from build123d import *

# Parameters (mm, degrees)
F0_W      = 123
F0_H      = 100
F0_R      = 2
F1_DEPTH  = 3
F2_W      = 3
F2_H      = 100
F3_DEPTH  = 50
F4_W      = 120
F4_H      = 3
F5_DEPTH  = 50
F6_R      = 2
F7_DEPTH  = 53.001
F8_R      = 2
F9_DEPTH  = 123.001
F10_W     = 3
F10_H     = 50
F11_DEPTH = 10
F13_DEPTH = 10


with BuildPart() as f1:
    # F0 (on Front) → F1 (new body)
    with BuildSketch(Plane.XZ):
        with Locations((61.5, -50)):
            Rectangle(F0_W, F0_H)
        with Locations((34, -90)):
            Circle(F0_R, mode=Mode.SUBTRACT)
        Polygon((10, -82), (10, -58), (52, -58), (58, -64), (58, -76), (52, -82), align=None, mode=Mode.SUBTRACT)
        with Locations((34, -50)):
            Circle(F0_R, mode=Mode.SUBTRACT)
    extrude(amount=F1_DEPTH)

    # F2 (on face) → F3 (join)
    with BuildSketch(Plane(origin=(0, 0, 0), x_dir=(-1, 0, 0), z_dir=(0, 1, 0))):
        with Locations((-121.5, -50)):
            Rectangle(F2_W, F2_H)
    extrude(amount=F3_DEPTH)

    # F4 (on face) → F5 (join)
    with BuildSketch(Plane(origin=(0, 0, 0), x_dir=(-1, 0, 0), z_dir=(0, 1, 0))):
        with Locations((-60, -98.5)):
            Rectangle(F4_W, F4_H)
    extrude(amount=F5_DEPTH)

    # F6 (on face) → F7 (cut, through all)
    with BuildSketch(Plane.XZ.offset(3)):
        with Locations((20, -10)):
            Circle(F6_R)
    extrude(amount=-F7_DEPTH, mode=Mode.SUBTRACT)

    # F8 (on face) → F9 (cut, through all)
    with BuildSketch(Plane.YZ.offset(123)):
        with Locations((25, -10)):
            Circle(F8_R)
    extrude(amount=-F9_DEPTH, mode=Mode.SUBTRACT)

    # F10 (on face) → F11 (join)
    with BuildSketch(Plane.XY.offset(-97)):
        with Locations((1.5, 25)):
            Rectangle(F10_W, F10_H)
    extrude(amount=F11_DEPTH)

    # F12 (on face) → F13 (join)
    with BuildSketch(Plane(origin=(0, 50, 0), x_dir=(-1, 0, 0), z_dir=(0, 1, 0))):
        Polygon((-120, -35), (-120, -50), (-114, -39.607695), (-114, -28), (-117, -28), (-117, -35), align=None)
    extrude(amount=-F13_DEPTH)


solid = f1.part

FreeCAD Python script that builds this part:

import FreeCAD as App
import Part
import Sketcher
from FreeCAD import Vector
Q = App.Units.Quantity


def add_polygon(sketch, points):
    """Adds a closed chain of lines whose ends are joined by coincident constraints."""
    first, n = sketch.GeometryCount, len(points)
    for a, b in zip(points, points[1:] + points[:1]):
        sketch.addGeometry(Part.LineSegment(App.Vector(*a, 0), App.Vector(*b, 0)), False)
    for i in range(n):
        sketch.addConstraint(Sketcher.Constraint("Coincident", first + i, 2, first + (i + 1) % n, 1))

doc = App.newDocument("Part")
body = doc.addObject("PartDesign::Body", "Body")

# Sketch on XZ plane
sketch1 = body.newObject("Sketcher::SketchObject", "Sketch")
sketch1.AttachmentSupport = (doc.getObject("XZ_Plane"), [""])
sketch1.MapMode = "FlatFace"
add_polygon(sketch1, [(0, 0), (0, -100), (123, -100), (123, 0)])  # lines 0-3
sketch1.addGeometry(Part.Circle(Vector(34, -90, 0), Vector(0, 0, 1), 2), False)  # 4
add_polygon(sketch1, [(52, -82), (10, -82), (10, -58), (52, -58), (58, -64), (58, -76)])  # lines 5-10
sketch1.addGeometry(Part.Circle(Vector(34, -50, 0), Vector(0, 0, 1), 2), False)  # 11
sketch1.addConstraint([
    Sketcher.Constraint("Vertical", 0),
    Sketcher.Constraint("Horizontal", 1),
    Sketcher.Constraint("Vertical", 2),
    Sketcher.Constraint("Horizontal", 3),
    Sketcher.Constraint("Horizontal", 5),
    Sketcher.Constraint("Vertical", 6),
    Sketcher.Constraint("Horizontal", 7),
    Sketcher.Constraint("Vertical", 9),
    Sketcher.Constraint("Coincident", 3, 2, -1, 1),
    Sketcher.Constraint("Equal", 4, 11),
    Sketcher.Constraint("Perpendicular", 8, 10),
    Sketcher.Constraint("Vertical", 4, 3, 11, 3),
    Sketcher.Constraint("Vertical", 7, 2, 10, 2),
    Sketcher.Constraint("Equal", 8, 10),
    Sketcher.Constraint("Diameter", 4, Q("4 mm")),
    Sketcher.Constraint("DistanceX", 1, 1, 1, 2, Q("123 mm")),
    Sketcher.Constraint("DistanceX", 5, 2, 5, 1, Q("42 mm")),
    Sketcher.Constraint("DistanceY", 0, 2, 0, 1, Q("100 mm")),
    Sketcher.Constraint("DistanceY", 6, 1, 6, 2, Q("24 mm")),
    Sketcher.Constraint("DistanceY", 9, 2, 9, 1, Q("12 mm")),
    Sketcher.Constraint("DistanceX", -1, 1, 4, 3, Q("34 mm")),
    Sketcher.Constraint("DistanceY", 4, 3, -1, 1, Q("90 mm")),
    Sketcher.Constraint("DistanceY", 11, 3, -1, 1, Q("50 mm")),
    Sketcher.Constraint("DistanceX", -1, 1, 5, 2, Q("10 mm")),
    Sketcher.Constraint("DistanceY", 5, 2, -1, 1, Q("82 mm")),
])
pad1 = body.newObject("PartDesign::Pad", "Pad")
pad1.Profile = sketch1
pad1.Length = 3

# Sketch on XZ plane
sketch2 = body.newObject("Sketcher::SketchObject", "Sketch001")
sketch2.AttachmentSupport = (doc.getObject("XZ_Plane"), [""])
sketch2.MapMode = "FlatFace"
add_polygon(sketch2, [(123, 0), (123, -100), (120, -100), (120, 0)])  # lines 0-3
sketch2.addConstraint([
    Sketcher.Constraint("Vertical", 0),
    Sketcher.Constraint("Horizontal", 1),
    Sketcher.Constraint("Vertical", 2),
    Sketcher.Constraint("Horizontal", 3),
    Sketcher.Constraint("PointOnObject", 2, 2, -1),
    Sketcher.Constraint("DistanceX", 1, 2, 1, 1, Q("3 mm")),
    Sketcher.Constraint("DistanceY", 0, 2, 0, 1, Q("100 mm")),
    Sketcher.Constraint("DistanceX", -1, 1, 0, 2, Q("123 mm")),
])
pad2 = body.newObject("PartDesign::Pad", "Pad001")
pad2.Profile = sketch2
pad2.Length = 50
pad2.Reversed = True

# Sketch on XZ plane
sketch3 = body.newObject("Sketcher::SketchObject", "Sketch002")
sketch3.AttachmentSupport = (doc.getObject("XZ_Plane"), [""])
sketch3.MapMode = "FlatFace"
add_polygon(sketch3, [(120, -97), (120, -100), (0, -100), (0, -97)])  # lines 0-3
sketch3.addConstraint([
    Sketcher.Constraint("Vertical", 0),
    Sketcher.Constraint("Horizontal", 1),
    Sketcher.Constraint("Vertical", 2),
    Sketcher.Constraint("Horizontal", 3),
    Sketcher.Constraint("PointOnObject", 1, 2, -2),
    Sketcher.Constraint("DistanceX", 1, 2, 1, 1, Q("120 mm")),
    Sketcher.Constraint("DistanceY", 0, 2, 0, 1, Q("3 mm")),
    Sketcher.Constraint("DistanceY", 0, 2, -1, 1, Q("100 mm")),
])
pad3 = body.newObject("PartDesign::Pad", "Pad002")
pad3.Profile = sketch3
pad3.Length = 50
pad3.Reversed = True

# Sketch on XZ plane
sketch4 = body.newObject("Sketcher::SketchObject", "Sketch003")
sketch4.AttachmentSupport = (doc.getObject("XZ_Plane"), [""])
sketch4.MapMode = "FlatFace"
sketch4.AttachmentOffset = App.Placement(Vector(0, 0, 3), App.Rotation())
sketch4.addGeometry(Part.Circle(Vector(20, -10, 0), Vector(0, 0, 1), 2), False)
sketch4.addConstraint([
    Sketcher.Constraint("Diameter", 0, Q("4 mm")),
    Sketcher.Constraint("DistanceX", -1, 1, 0, 3, Q("20 mm")),
    Sketcher.Constraint("DistanceY", 0, 3, -1, 1, Q("10 mm")),
])
pocket1 = body.newObject("PartDesign::Pocket", "Pocket")
pocket1.Profile = sketch4
pocket1.Type = "ThroughAll"

# Sketch on YZ plane
sketch5 = body.newObject("Sketcher::SketchObject", "Sketch004")
sketch5.AttachmentSupport = (doc.getObject("YZ_Plane"), [""])
sketch5.MapMode = "FlatFace"
sketch5.AttachmentOffset = App.Placement(Vector(0, 0, 123), App.Rotation())
sketch5.addGeometry(Part.Circle(Vector(25, -10, 0), Vector(0, 0, 1), 2), False)
sketch5.addConstraint([
    Sketcher.Constraint("Diameter", 0, Q("4 mm")),
    Sketcher.Constraint("DistanceX", -1, 1, 0, 3, Q("25 mm")),
    Sketcher.Constraint("DistanceY", 0, 3, -1, 1, Q("10 mm")),
])
pocket2 = body.newObject("PartDesign::Pocket", "Pocket001")
pocket2.Profile = sketch5
pocket2.Type = "ThroughAll"

# Sketch on XY plane
sketch6 = body.newObject("Sketcher::SketchObject", "Sketch005")
sketch6.AttachmentSupport = (doc.getObject("XY_Plane"), [""])
sketch6.MapMode = "FlatFace"
sketch6.AttachmentOffset = App.Placement(Vector(0, 0, -97), App.Rotation())
add_polygon(sketch6, [(0, 50), (0, 0), (3, 0), (3, 50)])  # lines 0-3
sketch6.addConstraint([
    Sketcher.Constraint("Vertical", 0),
    Sketcher.Constraint("Horizontal", 1),
    Sketcher.Constraint("Vertical", 2),
    Sketcher.Constraint("Horizontal", 3),
    Sketcher.Constraint("Coincident", 0, 2, -1, 1),
    Sketcher.Constraint("DistanceX", 1, 1, 1, 2, Q("3 mm")),
    Sketcher.Constraint("DistanceY", 0, 2, 0, 1, Q("50 mm")),
])
pad4 = body.newObject("PartDesign::Pad", "Pad003")
pad4.Profile = sketch6
pad4.Length = 10

# Sketch on XZ plane
sketch7 = body.newObject("Sketcher::SketchObject", "Sketch006")
sketch7.AttachmentSupport = (doc.getObject("XZ_Plane"), [""])
sketch7.MapMode = "FlatFace"
sketch7.AttachmentOffset = App.Placement(Vector(0, 0, -50), App.Rotation())
add_polygon(sketch7, [(120, -35), (120, -50), (114, -39.6), (114, -28), (117, -28), (117, -35)])  # lines 0-5
sketch7.addConstraint([
    Sketcher.Constraint("Vertical", 0),
    Sketcher.Constraint("Vertical", 2),
    Sketcher.Constraint("Horizontal", 3),
    Sketcher.Constraint("Vertical", 4),
    Sketcher.Constraint("Horizontal", 5),
    Sketcher.Constraint("Equal", 3, 5),
    Sketcher.Constraint("DistanceX", 3, 1, 3, 2, Q("3 mm")),
    Sketcher.Constraint("DistanceY", 0, 2, 0, 1, Q("15 mm")),
    Sketcher.Constraint("DistanceY", 4, 2, 4, 1, Q("7 mm")),
    Sketcher.Constraint("Angle", 1, Q("120 deg")),
    Sketcher.Constraint("DistanceX", -1, 1, 0, 2, Q("120 mm")),
    Sketcher.Constraint("DistanceY", 0, 2, -1, 1, Q("50 mm")),
])
pad5 = body.newObject("PartDesign::Pad", "Pad004")
pad5.Profile = sketch7
pad5.Length = 10

doc.recompute()
